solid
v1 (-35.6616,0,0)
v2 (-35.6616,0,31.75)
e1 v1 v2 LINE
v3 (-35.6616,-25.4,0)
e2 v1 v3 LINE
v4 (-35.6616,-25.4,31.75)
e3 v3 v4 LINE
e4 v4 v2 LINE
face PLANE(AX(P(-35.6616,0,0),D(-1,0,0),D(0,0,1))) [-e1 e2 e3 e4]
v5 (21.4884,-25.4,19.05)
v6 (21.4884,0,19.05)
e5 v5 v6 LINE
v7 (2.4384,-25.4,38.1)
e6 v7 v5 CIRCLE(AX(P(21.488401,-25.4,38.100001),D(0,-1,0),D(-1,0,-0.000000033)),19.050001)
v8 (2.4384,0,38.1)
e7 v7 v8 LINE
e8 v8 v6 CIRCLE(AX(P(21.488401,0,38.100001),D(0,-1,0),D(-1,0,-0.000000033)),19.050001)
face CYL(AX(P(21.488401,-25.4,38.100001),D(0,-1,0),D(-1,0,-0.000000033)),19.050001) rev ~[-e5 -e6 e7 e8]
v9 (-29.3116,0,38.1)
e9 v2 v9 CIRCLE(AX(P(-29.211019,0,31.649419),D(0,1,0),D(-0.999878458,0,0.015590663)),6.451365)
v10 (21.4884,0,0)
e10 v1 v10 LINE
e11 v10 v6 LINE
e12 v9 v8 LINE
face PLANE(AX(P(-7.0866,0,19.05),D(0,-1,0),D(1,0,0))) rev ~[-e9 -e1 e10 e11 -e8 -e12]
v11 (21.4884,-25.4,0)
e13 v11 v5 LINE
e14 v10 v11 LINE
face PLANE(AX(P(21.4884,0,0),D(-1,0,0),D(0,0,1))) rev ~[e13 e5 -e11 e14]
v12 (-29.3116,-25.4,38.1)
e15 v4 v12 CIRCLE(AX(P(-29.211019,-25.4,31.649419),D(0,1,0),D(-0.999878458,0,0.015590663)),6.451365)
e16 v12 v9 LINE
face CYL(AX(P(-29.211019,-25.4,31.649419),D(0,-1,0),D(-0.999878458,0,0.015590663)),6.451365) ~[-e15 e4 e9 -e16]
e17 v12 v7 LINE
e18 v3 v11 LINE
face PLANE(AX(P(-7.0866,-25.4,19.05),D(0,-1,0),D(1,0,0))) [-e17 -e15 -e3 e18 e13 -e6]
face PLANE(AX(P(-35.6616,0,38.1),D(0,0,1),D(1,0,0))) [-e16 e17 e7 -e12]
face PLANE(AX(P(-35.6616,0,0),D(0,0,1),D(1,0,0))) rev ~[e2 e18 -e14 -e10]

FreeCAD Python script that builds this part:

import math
import FreeCAD as App
import Part
import Sketcher
from FreeCAD import Vector
Q = App.Units.Quantity

doc = App.newDocument("Part")
body = doc.addObject("PartDesign::Body", "Body")

# Sketch on XZ plane
sketch1 = doc.addObject("Sketcher::SketchObject", "Sketch")
body.addObject(sketch1)
sketch1.AttachmentSupport = (doc.XZ_Plane, [""])
sketch1.MapMode = "FlatFace"
sketch1.addGeometry([
    Part.LineSegment(Vector(-35.6616, 38.1, 0), Vector(-35.6616, 0, 0)),
    Part.LineSegment(Vector(-35.6616, 0, 0), Vector(21.4884, 0, 0)),
    Part.LineSegment(Vector(21.4884, 0, 0), Vector(21.4884, 38.1, 0)),
    Part.LineSegment(Vector(21.4884, 38.1, 0), Vector(-35.6616, 38.1, 0)),
], False)
sketch1.addConstraint([
    Sketcher.Constraint("Coincident", 0, 2, 1, 1),
    Sketcher.Constraint("Coincident", 1, 2, 2, 1),
    Sketcher.Constraint("Coincident", 2, 2, 3, 1),
    Sketcher.Constraint("Coincident", 3, 2, 0, 1),
    Sketcher.Constraint("Vertical", 0),
    Sketcher.Constraint("Horizontal", 1),
    Sketcher.Constraint("Vertical", 2),
    Sketcher.Constraint("Horizontal", 3),
    Sketcher.Constraint("PointOnObject", 0, 2, -1),
    Sketcher.Constraint("DistanceY", 0, 2, 0, 1, Q("1.5 in")),
    Sketcher.Constraint("DistanceX", 1, 1, 1, 2, Q("2.25 in")),
    Sketcher.Constraint("DistanceX", 0, 2, -1, 1, Q("1.404 in")),
])
pad1 = doc.addObject("PartDesign::Pad", "Pad")
body.addObject(pad1)
pad1.Profile = sketch1
pad1.Length = Q("1 in")

# Sketch on XZ plane
sketch2 = doc.addObject("Sketcher::SketchObject", "Sketch001")
body.addObject(sketch2)
sketch2.AttachmentSupport = (doc.XZ_Plane, [""])
sketch2.MapMode = "FlatFace"
sketch2.AttachmentOffset = App.Placement(Vector(0, 0, 1 * 25.4), App.Rotation())
sketch2.addGeometry([
    Part.LineSegment(Vector(21.4884, 38.1, 0), Vector(2.4384, 38.1, 0)),
    Part.ArcOfCircle(Part.Circle(Vector(21.488401, 38.100001, 0), Vector(0, 0, 1), 19.050001), math.radians(-179.999998), math.radians(-90.000002)),
    Part.LineSegment(Vector(21.4884, 19.05, 0), Vector(21.4884, 38.1, 0)),
], False)
sketch2.addConstraint([
    Sketcher.Constraint("Coincident", 0, 2, 1, 1),
    Sketcher.Constraint("Coincident", 1, 2, 2, 1),
    Sketcher.Constraint("Coincident", 2, 2, 0, 1),
    Sketcher.Constraint("Horizontal", 0),
    Sketcher.Constraint("Vertical", 2),
    Sketcher.Constraint("Coincident", 2, 2, 1, 3),
    Sketcher.Constraint("Radius", 1, Q("0.75 in")),
    Sketcher.Constraint("DistanceY", -1, 1, 1, 3, Q("1.5 in")),
    Sketcher.Constraint("DistanceX", -1, 1, 1, 3, Q("0.846 in")),
])
pocket1 = doc.addObject("PartDesign::Pocket", "Pocket")
body.addObject(pocket1)
pocket1.Profile = sketch2
pocket1.Length = Q("1 in")

# Sketch on XZ plane
sketch3 = doc.addObject("Sketcher::SketchObject", "Sketch002")
body.addObject(sketch3)
sketch3.AttachmentSupport = (doc.XZ_Plane, [""])
sketch3.MapMode = "FlatFace"
sketch3.AttachmentOffset = App.Placement(Vector(0, 0, 1 * 25.4), App.Rotation())
sketch3.addGeometry([
    Part.ArcOfCircle(Part.Circle(Vector(-29.211019, 31.649419, 0), Vector(0, 0, 1), 6.451365), math.radians(90.893315), math.radians(179.106685)),
    Part.LineSegment(Vector(-29.3116, 38.1, 0), Vector(-35.6616, 38.1, 0)),
    Part.LineSegment(Vector(-35.6616, 38.1, 0), Vector(-35.6616, 31.75, 0)),
], False)
sketch3.addConstraint([
    Sketcher.Constraint("Coincident", 0, 1, 1, 1),
    Sketcher.Constraint("Coincident", 1, 2, 2, 1),
    Sketcher.Constraint("Coincident", 2, 2, 0, 2),
    Sketcher.Constraint("Horizontal", 1),
    Sketcher.Constraint("Vertical", 2),
    Sketcher.Constraint("Equal", 1, 2),
    Sketcher.Constraint("DistanceX", 1, 2, 1, 1, Q("0.25 in")),
    Sketcher.Constraint("DistanceY", -1, 1, 0, 1, Q("1.5 in")),
    Sketcher.Constraint("DistanceX", 0, 1, -1, 1, Q("1.154 in")),
    Sketcher.Constraint("Radius", 0, 6.451365),
])
pocket2 = doc.addObject("PartDesign::Pocket", "Pocket001")
body.addObject(pocket2)
pocket2.Profile = sketch3
pocket2.Length = Q("1 in")

doc.recompute()
